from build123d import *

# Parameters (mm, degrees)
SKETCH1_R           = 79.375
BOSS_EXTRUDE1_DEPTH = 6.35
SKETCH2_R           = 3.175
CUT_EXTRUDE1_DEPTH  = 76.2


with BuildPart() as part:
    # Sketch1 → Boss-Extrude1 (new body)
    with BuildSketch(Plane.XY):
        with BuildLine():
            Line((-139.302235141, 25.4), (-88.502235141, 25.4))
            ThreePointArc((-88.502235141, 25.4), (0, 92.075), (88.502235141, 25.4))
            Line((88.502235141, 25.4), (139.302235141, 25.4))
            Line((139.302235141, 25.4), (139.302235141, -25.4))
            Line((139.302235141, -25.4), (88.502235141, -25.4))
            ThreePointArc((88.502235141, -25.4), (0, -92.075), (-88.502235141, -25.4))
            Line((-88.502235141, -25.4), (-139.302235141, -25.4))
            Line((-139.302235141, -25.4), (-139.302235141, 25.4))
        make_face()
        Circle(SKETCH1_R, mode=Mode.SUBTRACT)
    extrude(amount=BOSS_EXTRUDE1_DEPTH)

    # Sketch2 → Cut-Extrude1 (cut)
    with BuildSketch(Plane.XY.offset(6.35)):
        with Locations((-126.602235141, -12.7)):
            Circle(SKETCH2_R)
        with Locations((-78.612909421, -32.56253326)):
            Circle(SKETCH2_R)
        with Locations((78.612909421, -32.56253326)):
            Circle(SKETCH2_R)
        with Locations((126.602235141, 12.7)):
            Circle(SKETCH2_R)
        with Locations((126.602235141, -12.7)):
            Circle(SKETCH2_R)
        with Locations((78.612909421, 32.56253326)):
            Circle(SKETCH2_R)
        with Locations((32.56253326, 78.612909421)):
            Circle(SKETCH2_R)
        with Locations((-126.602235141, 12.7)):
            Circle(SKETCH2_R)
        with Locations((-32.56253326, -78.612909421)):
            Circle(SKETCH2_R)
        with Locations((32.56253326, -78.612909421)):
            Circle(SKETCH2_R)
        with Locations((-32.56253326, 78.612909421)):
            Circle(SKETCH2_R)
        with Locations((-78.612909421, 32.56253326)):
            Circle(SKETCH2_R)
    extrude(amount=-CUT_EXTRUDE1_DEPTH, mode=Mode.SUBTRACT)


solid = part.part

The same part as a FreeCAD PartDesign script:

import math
import FreeCAD as App
import Part
import Sketcher

V = App.Vector
Q = App.Units.Quantity

doc = App.newDocument("Part")
body = doc.addObject("PartDesign::Body", "Body")

sketch1 = doc.addObject("Sketcher::SketchObject", "Sketch")
body.addObject(sketch1)
sketch1.AttachmentSupport = (doc.XY_Plane, [""])
sketch1.MapMode = "FlatFace"
sketch1.addGeometry(Part.LineSegment(V(-89, 25, 0), V(-139, 25, 0)), False)
sketch1.addGeometry(Part.LineSegment(V(-139, 25, 0), V(-139, -25, 0)), False)
sketch1.addGeometry(Part.LineSegment(V(-139, -25, 0), V(-89, -25, 0)), False)
sketch1.addGeometry(Part.ArcOfCircle(Part.Circle(V(0, 0, 0), V(0, 0, 1), 92), math.radians(-164), math.radians(-16)), False)
sketch1.addGeometry(Part.LineSegment(V(89, -25, 0), V(139, -25, 0)), False)
sketch1.addGeometry(Part.LineSegment(V(139, -25, 0), V(139, 25, 0)), False)
sketch1.addGeometry(Part.LineSegment(V(139, 25, 0), V(89, 25, 0)), False)
sketch1.addGeometry(Part.ArcOfCircle(Part.Circle(V(0, 0, 0), V(0, 0, 1), 92), math.radians(16), math.radians(164)), False)
sketch1.addGeometry(Part.Circle(V(0, 0, 0), V(0, 0, 1), 79), False)
sketch1.addConstraint(Sketcher.Constraint("Coincident", 0, 2, 1, 1))
sketch1.addConstraint(Sketcher.Constraint("Coincident", 1, 2, 2, 1))
sketch1.addConstraint(Sketcher.Constraint("Coincident", 2, 2, 3, 1))
sketch1.addConstraint(Sketcher.Constraint("Coincident", 3, 2, 4, 1))
sketch1.addConstraint(Sketcher.Constraint("Coincident", 4, 2, 5, 1))
sketch1.addConstraint(Sketcher.Constraint("Coincident", 5, 2, 6, 1))
sketch1.addConstraint(Sketcher.Constraint("Coincident", 6, 2, 7, 1))
sketch1.addConstraint(Sketcher.Constraint("Coincident", 7, 2, 0, 1))
sketch1.addConstraint(Sketcher.Constraint("Horizontal", 0))
sketch1.addConstraint(Sketcher.Constraint("Vertical", 1))
sketch1.addConstraint(Sketcher.Constraint("Horizontal", 2))
sketch1.addConstraint(Sketcher.Constraint("Horizontal", 4))
sketch1.addConstraint(Sketcher.Constraint("Vertical", 5))
sketch1.addConstraint(Sketcher.Constraint("Horizontal", 6))
sketch1.addConstraint(Sketcher.Constraint("Coincident", 3, 3, -1, 1))
sketch1.addConstraint(Sketcher.Constraint("Coincident", 7, 3, -1, 1))
sketch1.addConstraint(Sketcher.Constraint("Coincident", 8, 3, -1, 1))
sketch1.addConstraint(Sketcher.Constraint("Equal", 3, 7))
sketch1.addConstraint(Sketcher.Constraint("Symmetric", 0, 2, 4, 2, -1, 1))
sketch1.addConstraint(Sketcher.Constraint("Horizontal", 2, 2, 3, 2))
sketch1.addConstraint(Sketcher.Constraint("Horizontal", 0, 2, 5, 2))
sketch1.addConstraint(Sketcher.Constraint("Equal", 6, 1))
sketch1.addConstraint(Sketcher.Constraint("Diameter", 8, Q("6.25 in")))
sketch1.addConstraint(Sketcher.Constraint("DistanceX", 0, 2, 0, 1, Q("2 in")))
sketch1.addConstraint(Sketcher.Constraint("Radius", 3, Q("3.625 in")))
pad1 = doc.addObject("PartDesign::Pad", "Pad")
body.addObject(pad1)
pad1.Profile = sketch1
pad1.Length = Q("0.25 in")

sketch2 = doc.addObject("Sketcher::SketchObject", "Sketch001")
body.addObject(sketch2)
sketch2.AttachmentSupport = (doc.XY_Plane, [""])
sketch2.MapMode = "FlatFace"
sketch2.AttachmentOffset = App.Placement(V(0, 0, 0.25 * 25.4), App.Rotation())
sketch2.addGeometry(Part.Circle(V(-126.6, -12.7, 0), V(0, 0, 1), 3.2), False)
sketch2.addGeometry(Part.Circle(V(-78.6, -32.6, 0), V(0, 0, 1), 3.2), False)
sketch2.addGeometry(Part.Circle(V(78.6, -32.6, 0), V(0, 0, 1), 3.2), False)
sketch2.addGeometry(Part.Circle(V(126.6, 12.7, 0), V(0, 0, 1), 3.2), False)
sketch2.addGeometry(Part.Circle(V(126.6, -12.7, 0), V(0, 0, 1), 3.2), False)
sketch2.addGeometry(Part.Circle(V(78.6, 32.6, 0), V(0, 0, 1), 3.2), False)
sketch2.addGeometry(Part.Circle(V(32.6, 78.6, 0), V(0, 0, 1), 3.2), False)
sketch2.addGeometry(Part.Circle(V(-126.6, 12.7, 0), V(0, 0, 1), 3.2), False)
sketch2.addGeometry(Part.Circle(V(-32.6, -78.6, 0), V(0, 0, 1), 3.2), False)
sketch2.addGeometry(Part.Circle(V(32.6, -78.6, 0), V(0, 0, 1), 3.2), False)
sketch2.addGeometry(Part.Circle(V(-32.6, 78.6, 0), V(0, 0, 1), 3.2), False)
sketch2.addGeometry(Part.Circle(V(-78.6, 32.6, 0), V(0, 0, 1), 3.2), False)
sketch2.addConstraint(Sketcher.Constraint("Equal", 0, 1))
sketch2.addConstraint(Sketcher.Constraint("Equal", 1, 2))
sketch2.addConstraint(Sketcher.Constraint("Equal", 2, 3))
sketch2.addConstraint(Sketcher.Constraint("Equal", 3, 4))
sketch2.addConstraint(Sketcher.Constraint("Equal", 4, 5))
sketch2.addConstraint(Sketcher.Constraint("Equal", 5, 6))
sketch2.addConstraint(Sketcher.Constraint("Equal", 6, 7))
sketch2.addConstraint(Sketcher.Constraint("Equal", 7, 8))
sketch2.addConstraint(Sketcher.Constraint("Equal", 8, 9))
sketch2.addConstraint(Sketcher.Constraint("Equal", 9, 10))
sketch2.addConstraint(Sketcher.Constraint("Equal", 10, 11))
sketch2.addConstraint(Sketcher.Constraint("Symmetric", 0, 3, 3, 3, -1, 1))
sketch2.addConstraint(Sketcher.Constraint("Symmetric", 1, 3, 5, 3, -1, 1))
sketch2.addConstraint(Sketcher.Constraint("Symmetric", 4, 3, 7, 3, -1, 1))
sketch2.addConstraint(Sketcher.Constraint("Symmetric", 6, 3, 8, 3, -1, 1))
sketch2.addConstraint(Sketcher.Constraint("Symmetric", 9, 3, 10, 3, -1, 1))
sketch2.addConstraint(Sketcher.Constraint("Symmetric", 2, 3, 11, 3, -1, 1))
sketch2.addConstraint(Sketcher.Constraint("Symmetric", 1, 3, 2, 3, -2))
sketch2.addConstraint(Sketcher.Constraint("Symmetric", 0, 3, 4, 3, -2))
sketch2.addConstraint(Sketcher.Constraint("Symmetric", 8, 3, 9, 3, -2))
sketch2.addConstraint(Sketcher.Constraint("Diameter", 0, Q("0.25 in")))
sketch2.addConstraint(Sketcher.Constraint("DistanceY", 0, 3, 3, 3, Q("1 in")))
sketch2.addConstraint(Sketcher.Constraint("DistanceX", 6, 3, 3, 3, Q("94.039702 mm")))
sketch2.addConstraint(Sketcher.Constraint("DistanceX", 1, 3, -1, 1, Q("78.612909 mm")))
sketch2.addConstraint(Sketcher.Constraint("DistanceY", -1, 1, 6, 3, Q("78.612909 mm")))
sketch2.addConstraint(Sketcher.Constraint("DistanceX", 0, 3, 3, 3, Q("253.20447 mm")))
sketch2.addConstraint(Sketcher.Constraint("DistanceY", 1, 3, -1, 1, Q("32.562533 mm")))
pocket1 = doc.addObject("PartDesign::Pocket", "Pocket")
body.addObject(pocket1)
pocket1.Profile = sketch2
pocket1.Length = Q("3 in")

doc.recompute()
